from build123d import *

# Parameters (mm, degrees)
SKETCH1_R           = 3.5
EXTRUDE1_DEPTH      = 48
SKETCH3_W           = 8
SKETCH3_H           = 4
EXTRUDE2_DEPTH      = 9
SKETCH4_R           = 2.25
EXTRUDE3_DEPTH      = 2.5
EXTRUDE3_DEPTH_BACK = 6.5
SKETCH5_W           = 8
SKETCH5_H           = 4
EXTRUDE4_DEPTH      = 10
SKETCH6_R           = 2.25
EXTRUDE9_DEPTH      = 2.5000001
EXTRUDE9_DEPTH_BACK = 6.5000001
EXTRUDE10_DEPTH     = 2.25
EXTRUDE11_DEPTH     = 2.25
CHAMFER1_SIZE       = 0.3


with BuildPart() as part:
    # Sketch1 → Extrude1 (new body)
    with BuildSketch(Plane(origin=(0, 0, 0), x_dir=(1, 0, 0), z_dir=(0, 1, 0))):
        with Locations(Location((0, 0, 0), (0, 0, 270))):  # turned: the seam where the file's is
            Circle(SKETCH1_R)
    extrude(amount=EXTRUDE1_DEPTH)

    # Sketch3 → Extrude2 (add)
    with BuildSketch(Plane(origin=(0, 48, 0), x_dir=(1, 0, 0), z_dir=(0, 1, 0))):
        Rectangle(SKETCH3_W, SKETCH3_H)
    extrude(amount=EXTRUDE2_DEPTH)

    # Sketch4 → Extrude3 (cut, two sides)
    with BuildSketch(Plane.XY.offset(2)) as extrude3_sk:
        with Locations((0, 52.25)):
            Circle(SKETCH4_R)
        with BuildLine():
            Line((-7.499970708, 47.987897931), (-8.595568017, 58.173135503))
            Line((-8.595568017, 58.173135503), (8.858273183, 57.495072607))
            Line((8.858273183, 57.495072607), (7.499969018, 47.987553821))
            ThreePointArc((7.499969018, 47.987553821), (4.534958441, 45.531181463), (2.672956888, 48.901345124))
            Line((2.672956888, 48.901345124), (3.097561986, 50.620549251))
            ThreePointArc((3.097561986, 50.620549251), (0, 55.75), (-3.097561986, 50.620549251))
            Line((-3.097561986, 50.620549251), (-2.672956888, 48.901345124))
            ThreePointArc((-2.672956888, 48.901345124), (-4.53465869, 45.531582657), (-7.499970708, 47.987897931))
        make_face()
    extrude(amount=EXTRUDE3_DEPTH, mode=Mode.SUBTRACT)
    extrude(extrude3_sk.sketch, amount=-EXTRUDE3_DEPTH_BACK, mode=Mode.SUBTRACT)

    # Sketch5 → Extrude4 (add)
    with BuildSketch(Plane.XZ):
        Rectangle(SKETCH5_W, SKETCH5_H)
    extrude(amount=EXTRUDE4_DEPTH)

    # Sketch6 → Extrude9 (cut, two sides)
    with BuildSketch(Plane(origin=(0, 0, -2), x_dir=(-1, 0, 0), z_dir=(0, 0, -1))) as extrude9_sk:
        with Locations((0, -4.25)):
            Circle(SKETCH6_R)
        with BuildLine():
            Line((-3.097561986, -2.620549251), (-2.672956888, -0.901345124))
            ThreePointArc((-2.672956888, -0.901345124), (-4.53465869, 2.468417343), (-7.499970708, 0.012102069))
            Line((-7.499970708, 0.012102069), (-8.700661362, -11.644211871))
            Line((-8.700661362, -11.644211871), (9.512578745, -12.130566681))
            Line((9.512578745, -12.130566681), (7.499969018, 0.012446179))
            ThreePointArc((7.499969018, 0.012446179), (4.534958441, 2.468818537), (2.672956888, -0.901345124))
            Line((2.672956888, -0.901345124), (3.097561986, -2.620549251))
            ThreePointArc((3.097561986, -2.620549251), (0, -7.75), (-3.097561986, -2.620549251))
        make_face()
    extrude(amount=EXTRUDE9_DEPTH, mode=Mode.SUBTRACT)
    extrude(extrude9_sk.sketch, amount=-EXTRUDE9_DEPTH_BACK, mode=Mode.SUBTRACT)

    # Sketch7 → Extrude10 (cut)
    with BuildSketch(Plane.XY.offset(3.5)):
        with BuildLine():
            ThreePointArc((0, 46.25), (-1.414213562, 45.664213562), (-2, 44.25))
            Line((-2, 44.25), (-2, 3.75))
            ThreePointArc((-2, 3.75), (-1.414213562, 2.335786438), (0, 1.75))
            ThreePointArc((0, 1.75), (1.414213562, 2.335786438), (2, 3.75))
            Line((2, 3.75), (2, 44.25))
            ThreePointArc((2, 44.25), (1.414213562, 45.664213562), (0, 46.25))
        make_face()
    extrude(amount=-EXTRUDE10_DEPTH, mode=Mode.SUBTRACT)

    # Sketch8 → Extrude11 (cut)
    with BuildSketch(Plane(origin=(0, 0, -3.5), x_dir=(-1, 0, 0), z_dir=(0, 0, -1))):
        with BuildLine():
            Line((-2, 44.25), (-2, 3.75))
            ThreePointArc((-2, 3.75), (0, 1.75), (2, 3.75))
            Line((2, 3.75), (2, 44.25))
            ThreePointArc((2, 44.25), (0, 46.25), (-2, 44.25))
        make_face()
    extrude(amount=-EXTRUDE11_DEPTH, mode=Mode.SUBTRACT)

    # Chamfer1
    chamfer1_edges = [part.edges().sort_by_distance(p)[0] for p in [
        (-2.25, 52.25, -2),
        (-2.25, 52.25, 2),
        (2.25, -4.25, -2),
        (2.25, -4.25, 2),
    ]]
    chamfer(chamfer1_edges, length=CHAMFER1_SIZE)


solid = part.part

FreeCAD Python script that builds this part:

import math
import FreeCAD as App
import Part
import Sketcher
from FreeCAD import Vector


def edges_at(feature, points):
    """Names of the edges that pass closest to the given points."""
    edges = feature.Shape.Edges
    near = lambda p: min(range(len(edges)), key=lambda i: edges[i].distToShape(Part.Vertex(*p))[0])
    return sorted({f"Edge{near(p) + 1}" for p in points})

doc = App.newDocument("Part")
body = doc.addObject("PartDesign::Body", "Body")

# Sketch on XZ plane
sketch1 = doc.addObject("Sketcher::SketchObject", "Sketch")
body.addObject(sketch1)
sketch1.AttachmentSupport = (doc.XZ_Plane, [""])
sketch1.MapMode = "FlatFace"
sketch1.addGeometry(Part.Circle(Vector(0, 0, 0), Vector(0, 0, 1), 3.5), False)
sketch1.addConstraint(Sketcher.Constraint("Coincident", 0, 3, -1, 1))
sketch1.addConstraint(Sketcher.Constraint("Diameter", 0, 7.0))
pad1 = doc.addObject("PartDesign::Pad", "Pad")
body.addObject(pad1)
pad1.Profile = sketch1
pad1.Length = 48
pad1.Reversed = True

# Sketch on XZ plane
sketch2 = doc.addObject("Sketcher::SketchObject", "Sketch001")
body.addObject(sketch2)
sketch2.AttachmentSupport = (doc.XZ_Plane, [""])
sketch2.MapMode = "FlatFace"
sketch2.AttachmentOffset = App.Placement(Vector(0, 0, -48), App.Rotation())
sketch2.addGeometry(Part.LineSegment(Vector(-4, -2, 0), Vector(-4, 2, 0)), False)
sketch2.addGeometry(Part.LineSegment(Vector(-4, 2, 0), Vector(4, 2, 0)), False)
sketch2.addGeometry(Part.LineSegment(Vector(4, 2, 0), Vector(4, -2, 0)), False)
sketch2.addGeometry(Part.LineSegment(Vector(4, -2, 0), Vector(-4, -2, 0)), False)
sketch2.addConstraint(Sketcher.Constraint("Coincident", 0, 2, 1, 1))
sketch2.addConstraint(Sketcher.Constraint("Coincident", 1, 2, 2, 1))
sketch2.addConstraint(Sketcher.Constraint("Coincident", 2, 2, 3, 1))
sketch2.addConstraint(Sketcher.Constraint("Coincident", 3, 2, 0, 1))
sketch2.addConstraint(Sketcher.Constraint("Vertical", 0))
sketch2.addConstraint(Sketcher.Constraint("Horizontal", 1))
sketch2.addConstraint(Sketcher.Constraint("Vertical", 2))
sketch2.addConstraint(Sketcher.Constraint("Horizontal", 3))
sketch2.addConstraint(Sketcher.Constraint("Symmetric", 0, 2, 2, 2, -1, 1))
sketch2.addConstraint(Sketcher.Constraint("DistanceX", 1, 1, 1, 2, 8.0))
sketch2.addConstraint(Sketcher.Constraint("DistanceY", 0, 1, 0, 2, 4.0))
pad2 = doc.addObject("PartDesign::Pad", "Pad001")
body.addObject(pad2)
pad2.Profile = sketch2
pad2.Length = 9
pad2.Reversed = True

# Sketch on XY plane
sketch3 = doc.addObject("Sketcher::SketchObject", "Sketch002")
body.addObject(sketch3)
sketch3.AttachmentSupport = (doc.XY_Plane, [""])
sketch3.MapMode = "FlatFace"
sketch3.AttachmentOffset = App.Placement(Vector(0, 0, 2), App.Rotation())
sketch3.addGeometry(Part.Circle(Vector(0, 52.2, 0), Vector(0, 0, 1), 2.2), False)
sketch3.addGeometry(Part.LineSegment(Vector(-8.6, 58.2, 0), Vector(-7.5, 48, 0)), False)
sketch3.addGeometry(Part.ArcOfCircle(Part.Circle(Vector(-5, 48, 0), Vector(0, 0, 1), 2.5), math.radians(180), math.radians(381)), False)
sketch3.addGeometry(Part.LineSegment(Vector(-2.7, 48.9, 0), Vector(-3.1, 50.6, 0)), False)
sketch3.addGeometry(Part.ArcOfCircle(Part.Circle(Vector(0, 52.2, 0), Vector(0, 0, 1), 3.5), math.radians(-28), math.radians(208)), False)
sketch3.addGeometry(Part.LineSegment(Vector(3.1, 50.6, 0), Vector(2.7, 48.9, 0)), False)
sketch3.addGeometry(Part.ArcOfCircle(Part.Circle(Vector(5, 48, 0), Vector(0, 0, 1), 2.5), math.radians(159), math.radians(360)), False)
sketch3.addGeometry(Part.LineSegment(Vector(7.5, 48, 0), Vector(8.9, 57.5, 0)), False)
sketch3.addGeometry(Part.LineSegment(Vector(8.9, 57.5, 0), Vector(-8.6, 58.2, 0)), False)
sketch3.addConstraint(Sketcher.Constraint("Coincident", 1, 2, 2, 1))
sketch3.addConstraint(Sketcher.Constraint("Coincident", 2, 2, 3, 1))
sketch3.addConstraint(Sketcher.Constraint("Coincident", 3, 2, 4, 2))
sketch3.addConstraint(Sketcher.Constraint("Coincident", 4, 1, 5, 1))
sketch3.addConstraint(Sketcher.Constraint("Coincident", 5, 2, 6, 1))
sketch3.addConstraint(Sketcher.Constraint("Coincident", 6, 2, 7, 1))
sketch3.addConstraint(Sketcher.Constraint("Coincident", 7, 2, 8, 1))
sketch3.addConstraint(Sketcher.Constraint("Coincident", 8, 2, 1, 1))
sketch3.addConstraint(Sketcher.Constraint("Coincident", 4, 3, 0, 3))
sketch3.addConstraint(Sketcher.Constraint("Symmetric", 3, 2, 4, 1, -2))
sketch3.addConstraint(Sketcher.Constraint("Symmetric", 2, 2, 5, 2, -2))
sketch3.addConstraint(Sketcher.Constraint("Diameter", 0, 4.5))
sketch3.addConstraint(Sketcher.Constraint("Radius", 4, 3.5))
sketch3.addConstraint(Sketcher.Constraint("Radius", 6, 2.5))
sketch3.addConstraint(Sketcher.Constraint("DistanceY", -1, 1, 0, 3, 52.25))
sketch3.addConstraint(Sketcher.Constraint("Radius", 2, 2.499948))
sketch3.addConstraint(Sketcher.Constraint("DistanceY", 2, 3, 8, 2, 10.185301))
sketch3.addConstraint(Sketcher.Constraint("DistanceX", -1, 1, 6, 3, 4.999969))
sketch3.addConstraint(Sketcher.Constraint("DistanceX", 1, 2, -1, 1, 7.499971))
sketch3.addConstraint(Sketcher.Constraint("DistanceX", 3, 2, -1, 1, 3.097562))
sketch3.addConstraint(Sketcher.Constraint("DistanceX", 8, 2, -1, 1, 8.595568))
sketch3.addConstraint(Sketcher.Constraint("DistanceY", 2, 3, 2, 2, 0.91351))
sketch3.addConstraint(Sketcher.Constraint("DistanceY", 1, 2, 3, 2, 2.632651))
sketch3.addConstraint(Sketcher.Constraint("DistanceY", 6, 2, 5, 2, 0.913791))
sketch3.addConstraint(Sketcher.Constraint("DistanceX", 4, 1, 7, 2, 5.760711))
sketch3.addConstraint(Sketcher.Constraint("DistanceY", 6, 2, 7, 2, 9.507519))
sketch3.addConstraint(Sketcher.Constraint("Distance", 1, 10.243993))
pocket1 = doc.addObject("PartDesign::Pocket", "Pocket")
body.addObject(pocket1)
pocket1.Profile = sketch3
pocket1.Type = "ThroughAll"
pocket1.Midplane = True

# Sketch on XZ plane
sketch4 = doc.addObject("Sketcher::SketchObject", "Sketch003")
body.addObject(sketch4)
sketch4.AttachmentSupport = (doc.XZ_Plane, [""])
sketch4.MapMode = "FlatFace"
sketch4.addGeometry(Part.LineSegment(Vector(-4, 2, 0), Vector(-4, -2, 0)), False)
sketch4.addGeometry(Part.LineSegment(Vector(-4, -2, 0), Vector(4, -2, 0)), False)
sketch4.addGeometry(Part.LineSegment(Vector(4, -2, 0), Vector(4, 2, 0)), False)
sketch4.addGeometry(Part.LineSegment(Vector(4, 2, 0), Vector(-4, 2, 0)), False)
sketch4.addConstraint(Sketcher.Constraint("Coincident", 0, 2, 1, 1))
sketch4.addConstraint(Sketcher.Constraint("Coincident", 1, 2, 2, 1))
sketch4.addConstraint(Sketcher.Constraint("Coincident", 2, 2, 3, 1))
sketch4.addConstraint(Sketcher.Constraint("Coincident", 3, 2, 0, 1))
sketch4.addConstraint(Sketcher.Constraint("Vertical", 0))
sketch4.addConstraint(Sketcher.Constraint("Horizontal", 1))
sketch4.addConstraint(Sketcher.Constraint("Vertical", 2))
sketch4.addConstraint(Sketcher.Constraint("Horizontal", 3))
sketch4.addConstraint(Sketcher.Constraint("Symmetric", 0, 2, 2, 2, -1, 1))
sketch4.addConstraint(Sketcher.Constraint("DistanceX", 1, 1, 1, 2, 8.0))
sketch4.addConstraint(Sketcher.Constraint("DistanceY", 0, 2, 0, 1, 4.0))
pad3 = doc.addObject("PartDesign::Pad", "Pad002")
body.addObject(pad3)
pad3.Profile = sketch4
pad3.Length = 10

# Sketch on XY plane
sketch5 = doc.addObject("Sketcher::SketchObject", "Sketch004")
body.addObject(sketch5)
sketch5.AttachmentSupport = (doc.XY_Plane, [""])
sketch5.MapMode = "FlatFace"
sketch5.AttachmentOffset = App.Placement(Vector(0, 0, -2), App.Rotation())
sketch5.addGeometry(Part.Circle(Vector(0, -4.2, 0), Vector(0, 0, 1), 2.2), False)
sketch5.addGeometry(Part.LineSegment(Vector(3.1, -2.6, 0), Vector(2.7, -0.9, 0)), False)
sketch5.addGeometry(Part.ArcOfCircle(Part.Circle(Vector(5, 0, 0), Vector(0, 0, 1), 2.5), math.radians(0), math.radians(201)), False)
sketch5.addGeometry(Part.LineSegment(Vector(7.5, 0, 0), Vector(8.7, -11.6, 0)), False)
sketch5.addGeometry(Part.LineSegment(Vector(8.7, -11.6, 0), Vector(-9.5, -12.1, 0)), False)
sketch5.addGeometry(Part.LineSegment(Vector(-9.5, -12.1, 0), Vector(-7.5, 0, 0)), False)
sketch5.addGeometry(Part.ArcOfCircle(Part.Circle(Vector(-5, 0, 0), Vector(0, 0, 1), 2.5), math.radians(-21), math.radians(180)), False)
sketch5.addGeometry(Part.LineSegment(Vector(-2.7, -0.9, 0), Vector(-3.1, -2.6, 0)), False)
sketch5.addGeometry(Part.ArcOfCircle(Part.Circle(Vector(0, -4.2, 0), Vector(0, 0, 1), 3.5), math.radians(152), math.radians(388)), False)
sketch5.addConstraint(Sketcher.Constraint("Coincident", 1, 2, 2, 2))
sketch5.addConstraint(Sketcher.Constraint("Coincident", 2, 1, 3, 1))
sketch5.addConstraint(Sketcher.Constraint("Coincident", 3, 2, 4, 1))
sketch5.addConstraint(Sketcher.Constraint("Coincident", 4, 2, 5, 1))
sketch5.addConstraint(Sketcher.Constraint("Coincident", 5, 2, 6, 2))
sketch5.addConstraint(Sketcher.Constraint("Coincident", 6, 1, 7, 1))
sketch5.addConstraint(Sketcher.Constraint("Coincident", 7, 2, 8, 1))
sketch5.addConstraint(Sketcher.Constraint("Coincident", 8, 2, 1, 1))
sketch5.addConstraint(Sketcher.Constraint("Coincident", 8, 3, 0, 3))
sketch5.addConstraint(Sketcher.Constraint("Symmetric", 1, 2, 6, 1, -2))
sketch5.addConstraint(Sketcher.Constraint("Symmetric", 7, 2, 8, 2, -2))
sketch5.addConstraint(Sketcher.Constraint("Horizontal", 6, 3, 5, 2))
sketch5.addConstraint(Sketcher.Constraint("Diameter", 0, 4.5))
sketch5.addConstraint(Sketcher.Constraint("Radius", 6, 2.5))
sketch5.addConstraint(Sketcher.Constraint("Radius", 8, 3.5))
sketch5.addConstraint(Sketcher.Constraint("DistanceY", 0, 3, -1, 1, 4.25))
sketch5.addConstraint(Sketcher.Constraint("Radius", 2, 2.499948))
sketch5.addConstraint(Sketcher.Constraint("Distance", 3, 11.717991))
sketch5.addConstraint(Sketcher.Constraint("Distance", 5, 12.30867))
sketch5.addConstraint(Sketcher.Constraint("DistanceX", 6, 3, -1, 1, 4.999969))
sketch5.addConstraint(Sketcher.Constraint("DistanceX", -1, 1, 2, 1, 7.499971))
sketch5.addConstraint(Sketcher.Constraint("DistanceX", -1, 1, 3, 2, 8.700661))
sketch5.addConstraint(Sketcher.Constraint("DistanceY", 3, 2, -1, 1, 11.644212))
sketch5.addConstraint(Sketcher.Constraint("DistanceX", 4, 2, -1, 1, 9.512579))
sketch5.addConstraint(Sketcher.Constraint("DistanceX", 7, 2, -1, 1, 3.097562))
sketch5.addConstraint(Sketcher.Constraint("DistanceY", 1, 2, 2, 3, 0.91351))
sketch5.addConstraint(Sketcher.Constraint("Distance", 1, 1.770862))
pocket2 = doc.addObject("PartDesign::Pocket", "Pocket001")
body.addObject(pocket2)
pocket2.Profile = sketch5
pocket2.Type = "ThroughAll"
pocket2.Midplane = True

# Sketch on XY plane
sketch6 = doc.addObject("Sketcher::SketchObject", "Sketch005")
body.addObject(sketch6)
sketch6.AttachmentSupport = (doc.XY_Plane, [""])
sketch6.MapMode = "FlatFace"
sketch6.AttachmentOffset = App.Placement(Vector(0, 0, 3.5), App.Rotation())
sketch6.addGeometry(Part.ArcOfCircle(Part.Circle(Vector(0, 44.2, 0), Vector(0, 0, 1), 2), math.radians(90), math.radians(180)), False)
sketch6.addGeometry(Part.LineSegment(Vector(-2, 44.2, 0), Vector(-2, 3.8, 0)), False)
sketch6.addGeometry(Part.ArcOfCircle(Part.Circle(Vector(0, 3.8, 0), Vector(0, 0, 1), 2), math.radians(-180), math.radians(-90)), False)
sketch6.addGeometry(Part.ArcOfCircle(Part.Circle(Vector(0, 3.8, 0), Vector(0, 0, 1), 2), math.radians(-90), math.radians(0)), False)
sketch6.addGeometry(Part.LineSegment(Vector(2, 3.8, 0), Vector(2, 44.2, 0)), False)
sketch6.addGeometry(Part.ArcOfCircle(Part.Circle(Vector(0, 44.2, 0), Vector(0, 0, 1), 2), math.radians(0), math.radians(90)), False)
sketch6.addConstraint(Sketcher.Constraint("Tangent", 0, 2, 1, 1))
sketch6.addConstraint(Sketcher.Constraint("Tangent", 1, 2, 2, 1))
sketch6.addConstraint(Sketcher.Constraint("Tangent", 2, 2, 3, 1))
sketch6.addConstraint(Sketcher.Constraint("Tangent", 3, 2, 4, 1))
sketch6.addConstraint(Sketcher.Constraint("Tangent", 4, 2, 5, 1))
sketch6.addConstraint(Sketcher.Constraint("Tangent", 5, 2, 0, 1))
sketch6.addConstraint(Sketcher.Constraint("Vertical", 1))
sketch6.addConstraint(Sketcher.Constraint("Vertical", 4))
sketch6.addConstraint(Sketcher.Constraint("Equal", 0, 2))
sketch6.addConstraint(Sketcher.Constraint("Equal", 2, 3))
sketch6.addConstraint(Sketcher.Constraint("PointOnObject", 0, 3, -2))
sketch6.addConstraint(Sketcher.Constraint("PointOnObject", 2, 2, -2))
sketch6.addConstraint(Sketcher.Constraint("PointOnObject", 5, 2, -2))
sketch6.addConstraint(Sketcher.Constraint("Radius", 0, 2.0))
sketch6.addConstraint(Sketcher.Constraint("DistanceY", 1, 2, 1, 1, 40.5))
sketch6.addConstraint(Sketcher.Constraint("DistanceY", -1, 1, 0, 3, 44.25))
pocket3 = doc.addObject("PartDesign::Pocket", "Pocket002")
body.addObject(pocket3)
pocket3.Profile = sketch6
pocket3.Length = 2.25

# Sketch on XY plane
sketch7 = doc.addObject("Sketcher::SketchObject", "Sketch006")
body.addObject(sketch7)
sketch7.AttachmentSupport = (doc.XY_Plane, [""])
sketch7.MapMode = "FlatFace"
sketch7.AttachmentOffset = App.Placement(Vector(0, 0, -3.5), App.Rotation())
sketch7.addGeometry(Part.LineSegment(Vector(2, 44.2, 0), Vector(2, 3.8, 0)), False)
sketch7.addGeometry(Part.ArcOfCircle(Part.Circle(Vector(0, 3.8, 0), Vector(0, 0, 1), 2), math.radians(180), math.radians(360)), False)
sketch7.addGeometry(Part.LineSegment(Vector(-2, 3.8, 0), Vector(-2, 44.2, 0)), False)
sketch7.addGeometry(Part.ArcOfCircle(Part.Circle(Vector(0, 44.2, 0), Vector(0, 0, 1), 2), math.radians(0), math.radians(180)), False)
sketch7.addConstraint(Sketcher.Constraint("Tangent", 0, 2, 1, 2))
sketch7.addConstraint(Sketcher.Constraint("Tangent", 1, 1, 2, 1))
sketch7.addConstraint(Sketcher.Constraint("Tangent", 2, 2, 3, 2))
sketch7.addConstraint(Sketcher.Constraint("Tangent", 3, 1, 0, 1))
sketch7.addConstraint(Sketcher.Constraint("Vertical", 0))
sketch7.addConstraint(Sketcher.Constraint("Vertical", 2))
sketch7.addConstraint(Sketcher.Constraint("PointOnObject", 1, 3, -2))
sketch7.addConstraint(Sketcher.Constraint("Radius", 1, 2.0))
sketch7.addConstraint(Sketcher.Constraint("DistanceY", 0, 2, 0, 1, 40.5))
sketch7.addConstraint(Sketcher.Constraint("DistanceY", -1, 1, 1, 3, 3.75))
pocket4 = doc.addObject("PartDesign::Pocket", "Pocket003")
body.addObject(pocket4)
pocket4.Profile = sketch7
pocket4.Length = 2.25
pocket4.Reversed = True
doc.recompute()

chamfer = doc.addObject("PartDesign::Chamfer", "Chamfer")
body.addObject(chamfer)
chamfer.Base = (pocket4, edges_at(pocket4, [
    (-2.25, 52.25, -2),
    (-2.25, 52.25, 2),
    (2.25, -4.25, -2),
    (2.25, -4.25, 2),
]))
chamfer.Size = 0.3

doc.recompute()
